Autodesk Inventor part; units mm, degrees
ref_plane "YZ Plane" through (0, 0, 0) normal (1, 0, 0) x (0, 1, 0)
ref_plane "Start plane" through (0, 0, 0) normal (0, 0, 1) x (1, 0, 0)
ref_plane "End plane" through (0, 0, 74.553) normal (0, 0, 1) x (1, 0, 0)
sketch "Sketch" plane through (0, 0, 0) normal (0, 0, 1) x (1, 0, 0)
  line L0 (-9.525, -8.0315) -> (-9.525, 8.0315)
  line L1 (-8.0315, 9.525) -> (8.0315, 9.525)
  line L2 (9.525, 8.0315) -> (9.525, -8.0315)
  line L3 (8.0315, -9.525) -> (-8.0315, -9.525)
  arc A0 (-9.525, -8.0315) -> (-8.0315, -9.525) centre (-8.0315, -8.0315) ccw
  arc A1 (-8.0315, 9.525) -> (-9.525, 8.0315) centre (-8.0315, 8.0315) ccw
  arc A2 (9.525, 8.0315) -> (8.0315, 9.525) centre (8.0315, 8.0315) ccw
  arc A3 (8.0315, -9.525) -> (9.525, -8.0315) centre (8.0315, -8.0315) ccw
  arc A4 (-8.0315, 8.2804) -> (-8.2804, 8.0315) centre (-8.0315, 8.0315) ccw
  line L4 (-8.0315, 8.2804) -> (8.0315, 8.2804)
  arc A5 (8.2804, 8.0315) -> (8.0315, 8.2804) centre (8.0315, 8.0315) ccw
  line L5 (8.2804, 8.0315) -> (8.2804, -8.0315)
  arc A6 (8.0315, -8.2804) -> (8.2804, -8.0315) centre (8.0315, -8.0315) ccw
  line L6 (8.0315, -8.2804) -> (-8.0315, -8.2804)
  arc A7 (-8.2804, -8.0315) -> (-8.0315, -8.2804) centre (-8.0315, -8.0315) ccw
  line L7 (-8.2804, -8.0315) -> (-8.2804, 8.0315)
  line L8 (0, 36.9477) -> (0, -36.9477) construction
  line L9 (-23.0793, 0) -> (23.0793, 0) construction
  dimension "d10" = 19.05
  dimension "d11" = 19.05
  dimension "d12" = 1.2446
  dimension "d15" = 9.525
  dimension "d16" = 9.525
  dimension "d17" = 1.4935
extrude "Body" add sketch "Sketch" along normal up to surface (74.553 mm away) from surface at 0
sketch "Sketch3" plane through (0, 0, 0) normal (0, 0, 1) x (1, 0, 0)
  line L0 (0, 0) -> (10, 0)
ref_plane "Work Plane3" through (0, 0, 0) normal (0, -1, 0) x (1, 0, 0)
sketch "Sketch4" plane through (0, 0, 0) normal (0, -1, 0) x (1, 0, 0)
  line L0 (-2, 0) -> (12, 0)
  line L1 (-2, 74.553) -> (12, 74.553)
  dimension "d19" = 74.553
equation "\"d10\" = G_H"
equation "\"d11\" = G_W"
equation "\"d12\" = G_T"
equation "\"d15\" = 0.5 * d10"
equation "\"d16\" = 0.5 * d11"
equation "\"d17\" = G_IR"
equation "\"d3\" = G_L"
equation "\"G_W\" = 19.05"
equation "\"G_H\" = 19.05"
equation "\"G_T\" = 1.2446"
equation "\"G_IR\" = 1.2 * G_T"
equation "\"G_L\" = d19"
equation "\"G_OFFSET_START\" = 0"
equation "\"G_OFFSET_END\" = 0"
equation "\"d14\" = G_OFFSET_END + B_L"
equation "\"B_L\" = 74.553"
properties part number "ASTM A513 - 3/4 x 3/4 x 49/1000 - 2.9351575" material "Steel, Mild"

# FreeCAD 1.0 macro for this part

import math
import FreeCAD as App
import Part
import Sketcher
from FreeCAD import Vector
Q = App.Units.Quantity

doc = App.newDocument("Part")
body = doc.addObject("PartDesign::Body", "Body")

# Sketch on XY plane
sketch1 = doc.addObject("Sketcher::SketchObject", "Sketch")
body.addObject(sketch1)
sketch1.AttachmentSupport = (doc.XY_Plane, [""])
sketch1.MapMode = "FlatFace"
sketch1.addGeometry(Part.LineSegment(Vector(-9.525, 8.0315, 0), Vector(-9.525, -8.0315, 0)), False)
sketch1.addGeometry(Part.ArcOfCircle(Part.Circle(Vector(-8.0315, -8.0315, 0), Vector(0, 0, 1), 1.4935), math.radians(180), math.radians(270)), False)
sketch1.addGeometry(Part.LineSegment(Vector(-8.0315, -9.525, 0), Vector(8.0315, -9.525, 0)), False)
sketch1.addGeometry(Part.ArcOfCircle(Part.Circle(Vector(8.0315, -8.0315, 0), Vector(0, 0, 1), 1.4935), math.radians(-90), math.radians(0)), False)
sketch1.addGeometry(Part.LineSegment(Vector(9.525, -8.0315, 0), Vector(9.525, 8.0315, 0)), False)
sketch1.addGeometry(Part.ArcOfCircle(Part.Circle(Vector(8.0315, 8.0315, 0), Vector(0, 0, 1), 1.4935), math.radians(0), math.radians(90)), False)
sketch1.addGeometry(Part.LineSegment(Vector(8.0315, 9.525, 0), Vector(-8.0315, 9.525, 0)), False)
sketch1.addGeometry(Part.ArcOfCircle(Part.Circle(Vector(-8.0315, 8.0315, 0), Vector(0, 0, 1), 1.4935), math.radians(90), math.radians(180)), False)
sketch1.addGeometry(Part.ArcOfCircle(Part.Circle(Vector(-8.0315, 8.0315, 0), Vector(0, 0, 1), 0.2489), math.radians(90), math.radians(180)), False)
sketch1.addGeometry(Part.LineSegment(Vector(-8.0315, 8.2804, 0), Vector(8.0315, 8.2804, 0)), False)
sketch1.addGeometry(Part.ArcOfCircle(Part.Circle(Vector(8.0315, 8.0315, 0), Vector(0, 0, 1), 0.2489), math.radians(0), math.radians(90)), False)
sketch1.addGeometry(Part.LineSegment(Vector(8.2804, 8.0315, 0), Vector(8.2804, -8.0315, 0)), False)
sketch1.addGeometry(Part.ArcOfCircle(Part.Circle(Vector(8.0315, -8.0315, 0), Vector(0, 0, 1), 0.2489), math.radians(-90), math.radians(0)), False)
sketch1.addGeometry(Part.LineSegment(Vector(8.0315, -8.2804, 0), Vector(-8.0315, -8.2804, 0)), False)
sketch1.addGeometry(Part.ArcOfCircle(Part.Circle(Vector(-8.0315, -8.0315, 0), Vector(0, 0, 1), 0.2489), math.radians(180), math.radians(270)), False)
sketch1.addGeometry(Part.LineSegment(Vector(-8.2804, -8.0315, 0), Vector(-8.2804, 8.0315, 0)), False)
sketch1.addConstraint(Sketcher.Constraint("Tangent", 0, 2, 1, 1))
sketch1.addConstraint(Sketcher.Constraint("Tangent", 1, 2, 2, 1))
sketch1.addConstraint(Sketcher.Constraint("Tangent", 2, 2, 3, 1))
sketch1.addConstraint(Sketcher.Constraint("Tangent", 3, 2, 4, 1))
sketch1.addConstraint(Sketcher.Constraint("Tangent", 4, 2, 5, 1))
sketch1.addConstraint(Sketcher.Constraint("Tangent", 5, 2, 6, 1))
sketch1.addConstraint(Sketcher.Constraint("Tangent", 6, 2, 7, 1))
sketch1.addConstraint(Sketcher.Constraint("Tangent", 7, 2, 0, 1))
sketch1.addConstraint(Sketcher.Constraint("Tangent", 8, 1, 9, 1))
sketch1.addConstraint(Sketcher.Constraint("Tangent", 9, 2, 10, 2))
sketch1.addConstraint(Sketcher.Constraint("Tangent", 10, 1, 11, 1))
sketch1.addConstraint(Sketcher.Constraint("Tangent", 11, 2, 12, 2))
sketch1.addConstraint(Sketcher.Constraint("Tangent", 12, 1, 13, 1))
sketch1.addConstraint(Sketcher.Constraint("Tangent", 13, 2, 14, 2))
sketch1.addConstraint(Sketcher.Constraint("Tangent", 14, 1, 15, 1))
sketch1.addConstraint(Sketcher.Constraint("Tangent", 15, 2, 8, 2))
sketch1.addConstraint(Sketcher.Constraint("Vertical", 0))
sketch1.addConstraint(Sketcher.Constraint("Horizontal", 2))
sketch1.addConstraint(Sketcher.Constraint("Vertical", 4))
sketch1.addConstraint(Sketcher.Constraint("Horizontal", 6))
sketch1.addConstraint(Sketcher.Constraint("Horizontal", 9))
sketch1.addConstraint(Sketcher.Constraint("Vertical", 11))
sketch1.addConstraint(Sketcher.Constraint("Horizontal", 13))
sketch1.addConstraint(Sketcher.Constraint("Vertical", 15))
sketch1.addConstraint(Sketcher.Constraint("Coincident", 8, 3, 7, 3))
sketch1.addConstraint(Sketcher.Constraint("Coincident", 10, 3, 5, 3))
sketch1.addConstraint(Sketcher.Constraint("Coincident", 12, 3, 3, 3))
sketch1.addConstraint(Sketcher.Constraint("Equal", 1, 3))
sketch1.addConstraint(Sketcher.Constraint("Equal", 3, 5))
sketch1.addConstraint(Sketcher.Constraint("Equal", 5, 7))
sketch1.addConstraint(Sketcher.Constraint("Equal", 12, 14))
sketch1.addConstraint(Sketcher.Constraint("Symmetric", 1, 3, 5, 3, -1, 1))
sketch1.addConstraint(Sketcher.Constraint("Equal", 13, 0))
sketch1.addConstraint(Sketcher.Constraint("Radius", 1, Q("1.4935 mm")))
sketch1.addConstraint(Sketcher.Constraint("DistanceX", 0, 2, -1, 1, Q("9.525 mm")))
sketch1.addConstraint(Sketcher.Constraint("Radius", 8, Q("0.249 mm")))
pad1 = doc.addObject("PartDesign::Pad", "Pad")
body.addObject(pad1)
pad1.Profile = sketch1
pad1.Length = 74.553

doc.recompute()
